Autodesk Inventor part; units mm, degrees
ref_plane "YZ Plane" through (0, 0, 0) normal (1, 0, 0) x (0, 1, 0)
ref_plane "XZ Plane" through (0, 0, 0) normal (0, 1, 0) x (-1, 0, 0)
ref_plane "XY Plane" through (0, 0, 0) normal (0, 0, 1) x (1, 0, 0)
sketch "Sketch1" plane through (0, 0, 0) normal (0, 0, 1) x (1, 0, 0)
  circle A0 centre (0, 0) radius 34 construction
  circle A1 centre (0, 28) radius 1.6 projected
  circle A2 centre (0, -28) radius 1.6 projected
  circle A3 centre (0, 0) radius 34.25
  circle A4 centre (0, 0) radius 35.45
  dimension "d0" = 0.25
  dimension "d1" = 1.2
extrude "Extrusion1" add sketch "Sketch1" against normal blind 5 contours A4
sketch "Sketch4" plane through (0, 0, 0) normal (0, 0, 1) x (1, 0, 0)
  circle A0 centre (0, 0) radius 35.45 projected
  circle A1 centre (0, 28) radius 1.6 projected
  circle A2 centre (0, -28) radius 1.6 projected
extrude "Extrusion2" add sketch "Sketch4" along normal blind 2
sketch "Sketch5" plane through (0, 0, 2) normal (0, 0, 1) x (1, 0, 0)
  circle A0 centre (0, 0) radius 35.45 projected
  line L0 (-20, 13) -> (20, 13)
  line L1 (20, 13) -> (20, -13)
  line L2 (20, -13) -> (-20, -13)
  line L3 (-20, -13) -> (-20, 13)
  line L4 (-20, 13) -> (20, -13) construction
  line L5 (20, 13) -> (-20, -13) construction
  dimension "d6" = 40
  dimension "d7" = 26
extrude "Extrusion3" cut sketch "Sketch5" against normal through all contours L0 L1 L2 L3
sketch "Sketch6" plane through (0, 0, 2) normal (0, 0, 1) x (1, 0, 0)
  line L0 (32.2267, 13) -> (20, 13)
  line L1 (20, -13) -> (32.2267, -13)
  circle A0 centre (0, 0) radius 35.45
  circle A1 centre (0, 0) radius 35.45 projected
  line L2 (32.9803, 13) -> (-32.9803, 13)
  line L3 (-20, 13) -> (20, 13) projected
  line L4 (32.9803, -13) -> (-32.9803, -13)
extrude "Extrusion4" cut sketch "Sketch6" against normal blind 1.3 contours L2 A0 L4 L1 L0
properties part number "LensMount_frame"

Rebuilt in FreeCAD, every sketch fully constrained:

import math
import FreeCAD as App
import Part
import Sketcher
from FreeCAD import Vector

doc = App.newDocument("Part")
body = doc.addObject("PartDesign::Body", "Body")

sketch1 = body.newObject("Sketcher::SketchObject", "Sketch")
sketch1.AttachmentSupport = (doc.getObject("XY_Plane"), [""])
sketch1.MapMode = "FlatFace"
sketch1.addGeometry([
    Part.Circle(Vector(0, 0, 0), Vector(0, 0, 1), 35),
    Part.Circle(Vector(0, 0, 0), Vector(0, 0, 1), 34),
], False)
sketch1.addConstraint([
    Sketcher.Constraint("Coincident", 0, 3, -1, 1),
    Sketcher.Constraint("Coincident", 1, 3, -1, 1),
    Sketcher.Constraint("Diameter", 0, 70.9),
    Sketcher.Constraint("Diameter", 1, 68.5),
])
pad1 = body.newObject("PartDesign::Pad", "Pad")
pad1.Profile = sketch1
pad1.Length = 5
pad1.Reversed = True

sketch2 = body.newObject("Sketcher::SketchObject", "Sketch001")
sketch2.AttachmentSupport = (doc.getObject("XY_Plane"), [""])
sketch2.MapMode = "FlatFace"
sketch2.addGeometry([
    Part.Circle(Vector(0, 0, 0), Vector(0, 0, 1), 35.5),
    Part.Circle(Vector(0, -28, 0), Vector(0, 0, 1), 1.6),
    Part.Circle(Vector(0, 28, 0), Vector(0, 0, 1), 1.6),
], False)
sketch2.addConstraint([
    Sketcher.Constraint("Coincident", 0, 3, -1, 1),
    Sketcher.Constraint("Equal", 1, 2),
    Sketcher.Constraint("Symmetric", 1, 3, 2, 3, -1, 1),
    Sketcher.Constraint("PointOnObject", 1, 3, -2),
    Sketcher.Constraint("Diameter", 0, 70.9),
    Sketcher.Constraint("Diameter", 1, 3.2),
    Sketcher.Constraint("DistanceY", 1, 3, -1, 1, 28.0),
])
pad2 = body.newObject("PartDesign::Pad", "Pad001")
pad2.Profile = sketch2
pad2.Length = 2

sketch3 = body.newObject("Sketcher::SketchObject", "Sketch002")
sketch3.AttachmentSupport = (doc.getObject("XY_Plane"), [""])
sketch3.MapMode = "FlatFace"
sketch3.AttachmentOffset = App.Placement(Vector(0, 0, 2), App.Rotation())
sketch3.addGeometry([
    Part.LineSegment(Vector(20, 13, 0), Vector(-20, 13, 0)),
    Part.LineSegment(Vector(-20, 13, 0), Vector(-20, -13, 0)),
    Part.LineSegment(Vector(-20, -13, 0), Vector(20, -13, 0)),
    Part.LineSegment(Vector(20, -13, 0), Vector(20, 13, 0)),
], False)
sketch3.addConstraint([
    Sketcher.Constraint("Coincident", 0, 2, 1, 1),
    Sketcher.Constraint("Coincident", 1, 2, 2, 1),
    Sketcher.Constraint("Coincident", 2, 2, 3, 1),
    Sketcher.Constraint("Coincident", 3, 2, 0, 1),
    Sketcher.Constraint("Horizontal", 0),
    Sketcher.Constraint("Vertical", 1),
    Sketcher.Constraint("Horizontal", 2),
    Sketcher.Constraint("Vertical", 3),
    Sketcher.Constraint("Symmetric", 0, 2, 2, 2, -1, 1),
    Sketcher.Constraint("DistanceX", 0, 2, 0, 1, 40.0),
    Sketcher.Constraint("DistanceY", 1, 2, 1, 1, 26.0),
])
pocket1 = body.newObject("PartDesign::Pocket", "Pocket")
pocket1.Profile = sketch3
pocket1.Type = "ThroughAll"

sketch4 = body.newObject("Sketcher::SketchObject", "Sketch003")
sketch4.AttachmentSupport = (doc.getObject("XY_Plane"), [""])
sketch4.MapMode = "FlatFace"
sketch4.AttachmentOffset = App.Placement(Vector(0, 0, 2), App.Rotation())
sketch4.addGeometry([
    Part.LineSegment(Vector(33, 13, 0), Vector(-33, 13, 0)),
    Part.ArcOfCircle(Part.Circle(Vector(0, 0, 0), Vector(0, 0, 1), 35), math.radians(158), math.radians(202)),
    Part.LineSegment(Vector(-33, -13, 0), Vector(33, -13, 0)),
    Part.ArcOfCircle(Part.Circle(Vector(0, 0, 0), Vector(0, 0, 1), 35), math.radians(-22), math.radians(22)),
], False)
sketch4.addConstraint([
    Sketcher.Constraint("Coincident", 0, 2, 1, 1),
    Sketcher.Constraint("Coincident", 1, 2, 2, 1),
    Sketcher.Constraint("Coincident", 2, 2, 3, 1),
    Sketcher.Constraint("Coincident", 3, 2, 0, 1),
    Sketcher.Constraint("Horizontal", 0),
    Sketcher.Constraint("Horizontal", 2),
    Sketcher.Constraint("Coincident", 1, 3, -1, 1),
    Sketcher.Constraint("Coincident", 3, 3, -1, 1),
    Sketcher.Constraint("Equal", 1, 3),
    Sketcher.Constraint("Vertical", 0, 2, 1, 2),
    Sketcher.Constraint("Radius", 1, 35.45),
    Sketcher.Constraint("DistanceY", -1, 1, 0, 2, 13.0),
])
pocket2 = body.newObject("PartDesign::Pocket", "Pocket001")
pocket2.Profile = sketch4
pocket2.Length = 1.3

doc.recompute()
